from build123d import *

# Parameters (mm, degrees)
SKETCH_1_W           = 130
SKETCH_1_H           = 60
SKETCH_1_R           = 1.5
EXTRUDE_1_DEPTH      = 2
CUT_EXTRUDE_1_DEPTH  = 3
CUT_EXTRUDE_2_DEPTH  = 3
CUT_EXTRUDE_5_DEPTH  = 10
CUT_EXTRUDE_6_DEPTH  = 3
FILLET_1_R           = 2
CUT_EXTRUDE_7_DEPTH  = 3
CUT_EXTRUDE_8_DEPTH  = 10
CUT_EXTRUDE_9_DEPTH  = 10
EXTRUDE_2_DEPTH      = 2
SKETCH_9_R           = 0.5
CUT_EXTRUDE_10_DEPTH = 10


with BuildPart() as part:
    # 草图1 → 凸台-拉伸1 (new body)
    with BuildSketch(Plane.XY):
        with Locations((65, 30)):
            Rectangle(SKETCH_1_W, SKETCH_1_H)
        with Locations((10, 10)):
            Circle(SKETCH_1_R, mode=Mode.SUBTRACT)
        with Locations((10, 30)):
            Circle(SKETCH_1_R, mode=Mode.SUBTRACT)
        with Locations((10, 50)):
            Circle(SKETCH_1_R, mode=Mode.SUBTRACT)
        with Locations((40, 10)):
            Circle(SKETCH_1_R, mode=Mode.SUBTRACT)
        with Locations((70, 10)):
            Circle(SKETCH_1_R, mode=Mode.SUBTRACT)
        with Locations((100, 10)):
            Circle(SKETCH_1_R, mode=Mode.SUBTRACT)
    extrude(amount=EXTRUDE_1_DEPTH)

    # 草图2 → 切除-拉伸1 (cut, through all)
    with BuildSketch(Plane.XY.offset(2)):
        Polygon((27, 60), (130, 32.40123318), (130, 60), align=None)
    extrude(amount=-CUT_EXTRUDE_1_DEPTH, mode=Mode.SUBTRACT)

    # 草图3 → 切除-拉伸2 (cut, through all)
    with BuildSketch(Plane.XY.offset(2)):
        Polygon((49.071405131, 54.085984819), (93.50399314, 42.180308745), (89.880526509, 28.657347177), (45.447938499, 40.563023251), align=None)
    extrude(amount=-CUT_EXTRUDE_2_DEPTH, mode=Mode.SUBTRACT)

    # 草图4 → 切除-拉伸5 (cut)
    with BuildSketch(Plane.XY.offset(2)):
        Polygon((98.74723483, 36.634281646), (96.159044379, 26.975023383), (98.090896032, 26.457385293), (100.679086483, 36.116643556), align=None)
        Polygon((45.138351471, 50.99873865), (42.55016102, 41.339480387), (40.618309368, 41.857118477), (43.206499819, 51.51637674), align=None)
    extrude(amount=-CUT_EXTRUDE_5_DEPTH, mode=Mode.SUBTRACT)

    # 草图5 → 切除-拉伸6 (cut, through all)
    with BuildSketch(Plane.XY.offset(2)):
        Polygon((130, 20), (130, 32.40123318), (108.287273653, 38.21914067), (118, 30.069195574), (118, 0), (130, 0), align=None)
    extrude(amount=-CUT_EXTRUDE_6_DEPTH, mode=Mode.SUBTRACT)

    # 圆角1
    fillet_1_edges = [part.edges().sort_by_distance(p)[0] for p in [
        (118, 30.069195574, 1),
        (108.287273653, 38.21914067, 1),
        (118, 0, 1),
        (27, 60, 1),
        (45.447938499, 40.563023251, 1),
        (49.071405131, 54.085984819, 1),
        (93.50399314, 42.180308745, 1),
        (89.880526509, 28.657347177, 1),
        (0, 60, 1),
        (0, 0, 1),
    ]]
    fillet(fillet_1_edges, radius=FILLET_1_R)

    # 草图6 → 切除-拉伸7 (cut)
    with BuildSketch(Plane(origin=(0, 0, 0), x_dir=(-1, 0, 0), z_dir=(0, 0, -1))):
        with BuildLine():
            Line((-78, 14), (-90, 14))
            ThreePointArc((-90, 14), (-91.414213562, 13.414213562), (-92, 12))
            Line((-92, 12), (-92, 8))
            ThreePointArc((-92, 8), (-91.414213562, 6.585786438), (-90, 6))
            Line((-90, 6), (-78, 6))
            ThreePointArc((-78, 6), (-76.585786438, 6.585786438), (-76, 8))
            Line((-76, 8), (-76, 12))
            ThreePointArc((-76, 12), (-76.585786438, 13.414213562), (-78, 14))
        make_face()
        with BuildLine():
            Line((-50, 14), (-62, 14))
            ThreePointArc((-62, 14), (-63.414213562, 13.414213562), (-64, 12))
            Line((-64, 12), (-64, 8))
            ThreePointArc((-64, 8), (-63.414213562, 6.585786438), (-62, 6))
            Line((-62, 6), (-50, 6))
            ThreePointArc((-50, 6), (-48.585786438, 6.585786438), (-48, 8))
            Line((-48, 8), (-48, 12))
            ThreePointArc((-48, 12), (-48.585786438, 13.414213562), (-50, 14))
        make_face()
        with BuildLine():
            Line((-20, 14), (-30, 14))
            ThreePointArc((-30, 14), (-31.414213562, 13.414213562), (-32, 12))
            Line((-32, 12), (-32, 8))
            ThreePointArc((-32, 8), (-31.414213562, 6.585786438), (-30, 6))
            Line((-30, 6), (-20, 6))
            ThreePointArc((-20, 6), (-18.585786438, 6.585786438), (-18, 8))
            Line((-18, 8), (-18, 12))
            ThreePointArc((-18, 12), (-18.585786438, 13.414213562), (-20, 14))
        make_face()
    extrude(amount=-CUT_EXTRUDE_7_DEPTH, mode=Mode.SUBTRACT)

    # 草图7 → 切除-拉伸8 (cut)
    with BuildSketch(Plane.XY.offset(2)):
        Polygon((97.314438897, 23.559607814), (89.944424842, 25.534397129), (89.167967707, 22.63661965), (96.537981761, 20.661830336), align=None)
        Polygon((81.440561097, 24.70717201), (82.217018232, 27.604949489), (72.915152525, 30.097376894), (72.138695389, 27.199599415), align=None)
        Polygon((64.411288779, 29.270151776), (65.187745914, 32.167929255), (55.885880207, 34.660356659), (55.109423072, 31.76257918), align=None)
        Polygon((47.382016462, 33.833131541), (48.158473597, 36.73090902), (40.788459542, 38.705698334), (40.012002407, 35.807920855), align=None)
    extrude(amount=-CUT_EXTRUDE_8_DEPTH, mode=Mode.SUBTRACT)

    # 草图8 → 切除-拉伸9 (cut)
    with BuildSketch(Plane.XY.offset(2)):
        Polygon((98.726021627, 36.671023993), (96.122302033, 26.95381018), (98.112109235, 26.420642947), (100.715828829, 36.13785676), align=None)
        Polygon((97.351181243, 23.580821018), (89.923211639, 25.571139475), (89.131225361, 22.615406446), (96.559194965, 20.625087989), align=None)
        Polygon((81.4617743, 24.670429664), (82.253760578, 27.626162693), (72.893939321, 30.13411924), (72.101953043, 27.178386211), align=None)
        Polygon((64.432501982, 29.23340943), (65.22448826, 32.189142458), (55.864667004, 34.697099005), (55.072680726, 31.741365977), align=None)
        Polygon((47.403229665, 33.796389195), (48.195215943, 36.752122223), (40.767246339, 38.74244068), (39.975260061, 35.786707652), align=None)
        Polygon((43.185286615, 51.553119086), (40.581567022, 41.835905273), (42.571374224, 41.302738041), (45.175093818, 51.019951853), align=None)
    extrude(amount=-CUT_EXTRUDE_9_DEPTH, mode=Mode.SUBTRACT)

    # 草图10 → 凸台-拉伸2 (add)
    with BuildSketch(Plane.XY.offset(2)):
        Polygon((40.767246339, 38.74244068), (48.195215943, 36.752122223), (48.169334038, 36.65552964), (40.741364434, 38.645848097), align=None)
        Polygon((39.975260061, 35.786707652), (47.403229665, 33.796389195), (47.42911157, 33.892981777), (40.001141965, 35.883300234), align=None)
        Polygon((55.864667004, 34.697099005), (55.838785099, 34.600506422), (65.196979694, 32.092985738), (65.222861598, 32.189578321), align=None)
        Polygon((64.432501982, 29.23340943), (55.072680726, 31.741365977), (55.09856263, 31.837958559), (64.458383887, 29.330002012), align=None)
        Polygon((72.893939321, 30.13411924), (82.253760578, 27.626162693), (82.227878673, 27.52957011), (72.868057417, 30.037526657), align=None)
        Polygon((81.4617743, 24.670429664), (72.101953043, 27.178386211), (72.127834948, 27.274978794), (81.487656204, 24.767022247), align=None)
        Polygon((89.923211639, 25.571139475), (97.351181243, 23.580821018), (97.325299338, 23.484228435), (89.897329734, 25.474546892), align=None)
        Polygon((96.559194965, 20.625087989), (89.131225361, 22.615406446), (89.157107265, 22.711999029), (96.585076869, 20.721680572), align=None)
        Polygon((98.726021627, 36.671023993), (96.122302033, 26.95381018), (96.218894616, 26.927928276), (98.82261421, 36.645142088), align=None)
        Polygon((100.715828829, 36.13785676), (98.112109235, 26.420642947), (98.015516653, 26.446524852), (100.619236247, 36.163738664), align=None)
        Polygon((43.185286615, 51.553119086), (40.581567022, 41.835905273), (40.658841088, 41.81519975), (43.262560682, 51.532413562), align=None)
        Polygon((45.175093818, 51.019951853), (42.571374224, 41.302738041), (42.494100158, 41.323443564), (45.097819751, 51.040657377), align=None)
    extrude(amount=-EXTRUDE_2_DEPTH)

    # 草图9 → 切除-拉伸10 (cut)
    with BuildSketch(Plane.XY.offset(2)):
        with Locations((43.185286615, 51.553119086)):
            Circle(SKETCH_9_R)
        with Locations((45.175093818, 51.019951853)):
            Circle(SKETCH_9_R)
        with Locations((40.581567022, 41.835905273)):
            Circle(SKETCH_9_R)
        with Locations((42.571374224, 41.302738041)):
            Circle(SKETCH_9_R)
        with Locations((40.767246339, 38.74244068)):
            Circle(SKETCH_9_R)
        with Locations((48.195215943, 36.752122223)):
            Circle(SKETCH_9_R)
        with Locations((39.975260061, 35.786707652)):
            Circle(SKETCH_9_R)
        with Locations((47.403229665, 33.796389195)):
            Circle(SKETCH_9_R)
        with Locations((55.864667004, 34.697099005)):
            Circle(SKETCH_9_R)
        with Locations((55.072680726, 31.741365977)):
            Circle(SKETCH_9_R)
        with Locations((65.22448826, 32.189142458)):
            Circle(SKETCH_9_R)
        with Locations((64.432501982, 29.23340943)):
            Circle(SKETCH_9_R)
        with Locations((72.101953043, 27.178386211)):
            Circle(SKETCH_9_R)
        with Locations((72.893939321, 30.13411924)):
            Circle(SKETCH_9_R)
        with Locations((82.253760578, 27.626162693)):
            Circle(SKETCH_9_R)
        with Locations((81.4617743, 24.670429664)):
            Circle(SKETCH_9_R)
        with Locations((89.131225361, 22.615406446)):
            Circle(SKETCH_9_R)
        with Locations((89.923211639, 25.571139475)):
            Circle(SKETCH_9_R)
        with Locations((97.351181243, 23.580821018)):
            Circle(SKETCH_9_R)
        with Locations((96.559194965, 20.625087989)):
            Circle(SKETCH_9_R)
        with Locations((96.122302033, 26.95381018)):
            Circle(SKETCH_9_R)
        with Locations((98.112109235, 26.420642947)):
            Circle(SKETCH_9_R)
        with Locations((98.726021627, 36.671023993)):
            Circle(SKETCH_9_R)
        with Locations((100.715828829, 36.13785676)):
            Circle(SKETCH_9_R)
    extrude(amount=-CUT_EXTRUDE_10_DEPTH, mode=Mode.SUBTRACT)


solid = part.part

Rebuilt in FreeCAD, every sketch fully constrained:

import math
import FreeCAD as App
import Part
import Sketcher
from FreeCAD import Vector
Q = App.Units.Quantity


def edges_at(feature, points):
    """Names of the edges that pass closest to the given points."""
    edges = feature.Shape.Edges
    near = lambda p: min(range(len(edges)), key=lambda i: edges[i].distToShape(Part.Vertex(*p))[0])
    return sorted({f"Edge{near(p) + 1}" for p in points})


def add_polygon(sketch, points):
    """Adds a closed chain of lines whose ends are joined by coincident constraints."""
    first, n = sketch.GeometryCount, len(points)
    for a, b in zip(points, points[1:] + points[:1]):
        sketch.addGeometry(Part.LineSegment(App.Vector(*a, 0), App.Vector(*b, 0)), False)
    for i in range(n):
        sketch.addConstraint(Sketcher.Constraint("Coincident", first + i, 2, first + (i + 1) % n, 1))

doc = App.newDocument("Part")
body = doc.addObject("PartDesign::Body", "Body")

# Sketch on XY plane
sketch1 = body.newObject("Sketcher::SketchObject", "Sketch")
sketch1.AttachmentSupport = (doc.getObject("XY_Plane"), [""])
sketch1.MapMode = "FlatFace"
add_polygon(sketch1, [(0, 60), (0, 0), (130, 0), (130, 60)])  # lines 0-3
sketch1.addGeometry(Part.Circle(Vector(10, 10, 0), Vector(0, 0, 1), 1.5), False)  # 4
sketch1.addGeometry(Part.Circle(Vector(40, 10, 0), Vector(0, 0, 1), 1.5), False)  # 5
sketch1.addGeometry(Part.Circle(Vector(70, 10, 0), Vector(0, 0, 1), 1.5), False)  # 6
sketch1.addGeometry(Part.Circle(Vector(100, 10, 0), Vector(0, 0, 1), 1.5), False)  # 7
sketch1.addGeometry(Part.Circle(Vector(10, 30, 0), Vector(0, 0, 1), 1.5), False)  # 8
sketch1.addGeometry(Part.Circle(Vector(10, 50, 0), Vector(0, 0, 1), 1.5), False)  # 9
sketch1.addConstraint([
    Sketcher.Constraint("Vertical", 0),
    Sketcher.Constraint("Horizontal", 1),
    Sketcher.Constraint("Vertical", 2),
    Sketcher.Constraint("Horizontal", 3),
    Sketcher.Constraint("Coincident", 0, 2, -1, 1),
    Sketcher.Constraint("Equal", 4, 5),
    Sketcher.Constraint("Equal", 5, 6),
    Sketcher.Constraint("Equal", 6, 7),
    Sketcher.Constraint("Equal", 7, 8),
    Sketcher.Constraint("Equal", 8, 9),
    Sketcher.Constraint("Horizontal", 4, 3, 5, 3),
    Sketcher.Constraint("Horizontal", 5, 3, 6, 3),
    Sketcher.Constraint("Horizontal", 6, 3, 7, 3),
    Sketcher.Constraint("Vertical", 4, 3, 8, 3),
    Sketcher.Constraint("Vertical", 8, 3, 9, 3),
    Sketcher.Constraint("Diameter", 4, 3.0),
    Sketcher.Constraint("DistanceX", 1, 1, 1, 2, 130.0),
    Sketcher.Constraint("DistanceY", 0, 2, 0, 1, 60.0),
    Sketcher.Constraint("DistanceX", -1, 1, 4, 3, 10.0),
    Sketcher.Constraint("DistanceY", -1, 1, 4, 3, 10.0),
    Sketcher.Constraint("DistanceX", -1, 1, 5, 3, 40.0),
    Sketcher.Constraint("DistanceX", -1, 1, 6, 3, 70.0),
    Sketcher.Constraint("DistanceX", -1, 1, 7, 3, 100.0),
    Sketcher.Constraint("DistanceY", -1, 1, 8, 3, 30.0),
    Sketcher.Constraint("DistanceY", -1, 1, 9, 3, 50.0),
])
pad1 = body.newObject("PartDesign::Pad", "Pad")
pad1.Profile = sketch1
pad1.Length = 2

# Sketch on XY plane
sketch2 = body.newObject("Sketcher::SketchObject", "Sketch001")
sketch2.AttachmentSupport = (doc.getObject("XY_Plane"), [""])
sketch2.MapMode = "FlatFace"
sketch2.AttachmentOffset = App.Placement(Vector(0, 0, 2), App.Rotation())
add_polygon(sketch2, [(27, 60), (130, 32.401233), (130, 60)])  # lines 0-2
sketch2.addConstraint([
    Sketcher.Constraint("Vertical", 1),
    Sketcher.Constraint("Horizontal", 2),
    Sketcher.Constraint("DistanceX", 2, 2, 2, 1, 103.0),
    Sketcher.Constraint("Angle", 0, Q("-15 deg")),
    Sketcher.Constraint("DistanceX", -1, 1, 0, 2, 130.0),
    Sketcher.Constraint("DistanceY", -1, 1, 1, 2, 60.0),
])
pocket1 = body.newObject("PartDesign::Pocket", "Pocket")
pocket1.Profile = sketch2
pocket1.Type = "ThroughAll"

# Sketch on XY plane
sketch3 = body.newObject("Sketcher::SketchObject", "Sketch002")
sketch3.AttachmentSupport = (doc.getObject("XY_Plane"), [""])
sketch3.MapMode = "FlatFace"
sketch3.AttachmentOffset = App.Placement(Vector(0, 0, 2), App.Rotation())
add_polygon(sketch3, [(93.503993, 42.180309), (49.071405, 54.085985), (45.447938, 40.563023), (89.880527, 28.657347)])  # lines 0-3
sketch3.addConstraint([
    Sketcher.Constraint("Perpendicular", 0, 1),
    Sketcher.Constraint("Perpendicular", 1, 2),
    Sketcher.Constraint("Perpendicular", 2, 3),
    Sketcher.Constraint("Angle", 0, Q("165 deg")),
    Sketcher.Constraint("Distance", 0, 46.0),
    Sketcher.Constraint("Distance", 1, 14.0),
    Sketcher.Constraint("DistanceX", -1, 1, 1, 2, 45.447938),
    Sketcher.Constraint("DistanceY", -1, 1, 3, 2, 42.180309),
])
pocket2 = body.newObject("PartDesign::Pocket", "Pocket001")
pocket2.Profile = sketch3
pocket2.Type = "ThroughAll"

# Sketch on XY plane
sketch4 = body.newObject("Sketcher::SketchObject", "Sketch003")
sketch4.AttachmentSupport = (doc.getObject("XY_Plane"), [""])
sketch4.MapMode = "FlatFace"
sketch4.AttachmentOffset = App.Placement(Vector(0, 0, 2), App.Rotation())
add_polygon(sketch4, [(98.747235, 36.634282), (96.159044, 26.975023), (98.090896, 26.457385), (100.679086, 36.116644)])  # lines 0-3
add_polygon(sketch4, [(42.550161, 41.33948), (45.138351, 50.998739), (43.2065, 51.516377), (40.618309, 41.857118)])  # lines 4-7
sketch4.addConstraint([
    Sketcher.Constraint("Perpendicular", 0, 1),
    Sketcher.Constraint("Perpendicular", 1, 2),
    Sketcher.Constraint("Perpendicular", 2, 3),
    Sketcher.Constraint("Perpendicular", 3, 4),
    Sketcher.Constraint("Perpendicular", 4, 5),
    Sketcher.Constraint("Perpendicular", 5, 6),
    Sketcher.Constraint("Perpendicular", 6, 7),
    Sketcher.Constraint("Equal", 2, 4),
    Sketcher.Constraint("Equal", 3, 5),
    Sketcher.Constraint("Angle", 0, Q("-105 deg")),
    Sketcher.Constraint("Distance", 0, 10.0),
    Sketcher.Constraint("Distance", 1, 2.0),
    Sketcher.Constraint("DistanceX", -1, 1, 5, 2, 43.2065),
    Sketcher.Constraint("DistanceY", 3, 2, 7, 2, 4.705199),
    Sketcher.Constraint("DistanceY", -1, 1, 3, 2, 36.634282),
    Sketcher.Constraint("DistanceX", -1, 1, 0, 2, 96.159044),
])
pocket3 = body.newObject("PartDesign::Pocket", "Pocket002")
pocket3.Profile = sketch4
pocket3.Length = 10

# Sketch on XY plane
sketch5 = body.newObject("Sketcher::SketchObject", "Sketch004")
sketch5.AttachmentSupport = (doc.getObject("XY_Plane"), [""])
sketch5.MapMode = "FlatFace"
sketch5.AttachmentOffset = App.Placement(Vector(0, 0, 2), App.Rotation())
add_polygon(sketch5, [(130, 32.401233), (108.287274, 38.219141), (118, 30.069196), (118, 0), (130, 0)])  # lines 0-4
sketch5.addConstraint([
    Sketcher.Constraint("Vertical", 2),
    Sketcher.Constraint("Horizontal", 3),
    Sketcher.Constraint("Vertical", 4),
    Sketcher.Constraint("PointOnObject", 2, 2, -1),
    Sketcher.Constraint("DistanceX", 3, 1, 3, 2, 12.0),
    Sketcher.Constraint("Angle", 0, Q("165 deg")),
    Sketcher.Constraint("Angle", 1, Q("-40 deg")),
    Sketcher.Constraint("DistanceX", -1, 1, 1, 2, 118.0),
    Sketcher.Constraint("Distance", 0, 22.478668),
    Sketcher.Constraint("DistanceY", 2, 2, 2, 1, 30.069196),
])
pocket4 = body.newObject("PartDesign::Pocket", "Pocket003")
pocket4.Profile = sketch5
pocket4.Type = "ThroughAll"
doc.recompute()

fillet = body.newObject("PartDesign::Fillet", "Fillet")
fillet.Base = (pocket4, edges_at(pocket4, [
    (118, 30.069, 1),
    (108.287, 38.219, 1),
    (118, 0, 1),
    (27, 60, 1),
    (45.448, 40.563, 1),
    (49.071, 54.086, 1),
    (93.504, 42.18, 1),
    (89.881, 28.657, 1),
    (0, 60, 1),
    (0, 0, 1),
]))
fillet.Radius = 2

# Sketch on XY plane
sketch6 = body.newObject("Sketcher::SketchObject", "Sketch005")
sketch6.AttachmentSupport = (doc.getObject("XY_Plane"), [""])
sketch6.MapMode = "FlatFace"
sketch6.addGeometry([
    Part.LineSegment(Vector(78, 14, 0), Vector(90, 14, 0)),  # 0
    Part.ArcOfCircle(Part.Circle(Vector(90, 12, 0), Vector(0, 0, 1), 2), math.radians(0), math.radians(90)),  # 1
    Part.LineSegment(Vector(92, 12, 0), Vector(92, 8, 0)),  # 2
    Part.ArcOfCircle(Part.Circle(Vector(90, 8, 0), Vector(0, 0, 1), 2), math.radians(-90), math.radians(0)),  # 3
    Part.LineSegment(Vector(90, 6, 0), Vector(78, 6, 0)),  # 4
    Part.ArcOfCircle(Part.Circle(Vector(78, 8, 0), Vector(0, 0, 1), 2), math.radians(-180), math.radians(-90)),  # 5
    Part.LineSegment(Vector(76, 8, 0), Vector(76, 12, 0)),  # 6
    Part.ArcOfCircle(Part.Circle(Vector(78, 12, 0), Vector(0, 0, 1), 2), math.radians(90), math.radians(180)),  # 7
    Part.LineSegment(Vector(50, 14, 0), Vector(62, 14, 0)),  # 8
    Part.ArcOfCircle(Part.Circle(Vector(62, 12, 0), Vector(0, 0, 1), 2), math.radians(0), math.radians(90)),  # 9
    Part.LineSegment(Vector(64, 12, 0), Vector(64, 8, 0)),  # 10
    Part.ArcOfCircle(Part.Circle(Vector(62, 8, 0), Vector(0, 0, 1), 2), math.radians(-90), math.radians(0)),  # 11
    Part.LineSegment(Vector(62, 6, 0), Vector(50, 6, 0)),  # 12
    Part.ArcOfCircle(Part.Circle(Vector(50, 8, 0), Vector(0, 0, 1), 2), math.radians(-180), math.radians(-90)),  # 13
    Part.LineSegment(Vector(48, 8, 0), Vector(48, 12, 0)),  # 14
    Part.ArcOfCircle(Part.Circle(Vector(50, 12, 0), Vector(0, 0, 1), 2), math.radians(90), math.radians(180)),  # 15
    Part.LineSegment(Vector(20, 14, 0), Vector(30, 14, 0)),  # 16
    Part.ArcOfCircle(Part.Circle(Vector(30, 12, 0), Vector(0, 0, 1), 2), math.radians(0), math.radians(90)),  # 17
    Part.LineSegment(Vector(32, 12, 0), Vector(32, 8, 0)),  # 18
    Part.ArcOfCircle(Part.Circle(Vector(30, 8, 0), Vector(0, 0, 1), 2), math.radians(-90), math.radians(0)),  # 19
    Part.LineSegment(Vector(30, 6, 0), Vector(20, 6, 0)),  # 20
    Part.ArcOfCircle(Part.Circle(Vector(20, 8, 0), Vector(0, 0, 1), 2), math.radians(-180), math.radians(-90)),  # 21
    Part.LineSegment(Vector(18, 8, 0), Vector(18, 12, 0)),  # 22
    Part.ArcOfCircle(Part.Circle(Vector(20, 12, 0), Vector(0, 0, 1), 2), math.radians(90), math.radians(180)),  # 23
], False)
sketch6.addConstraint([
    Sketcher.Constraint("Tangent", 0, 2, 1, 2),
    Sketcher.Constraint("Tangent", 1, 1, 2, 1),
    Sketcher.Constraint("Tangent", 2, 2, 3, 2),
    Sketcher.Constraint("Tangent", 3, 1, 4, 1),
    Sketcher.Constraint("Tangent", 4, 2, 5, 2),
    Sketcher.Constraint("Tangent", 5, 1, 6, 1),
    Sketcher.Constraint("Tangent", 6, 2, 7, 2),
    Sketcher.Constraint("Tangent", 7, 1, 0, 1),
    Sketcher.Constraint("Tangent", 8, 2, 9, 2),
    Sketcher.Constraint("Tangent", 9, 1, 10, 1),
    Sketcher.Constraint("Tangent", 10, 2, 11, 2),
    Sketcher.Constraint("Tangent", 11, 1, 12, 1),
    Sketcher.Constraint("Tangent", 12, 2, 13, 2),
    Sketcher.Constraint("Tangent", 13, 1, 14, 1),
    Sketcher.Constraint("Tangent", 14, 2, 15, 2),
    Sketcher.Constraint("Tangent", 15, 1, 8, 1),
    Sketcher.Constraint("Tangent", 16, 2, 17, 2),
    Sketcher.Constraint("Tangent", 17, 1, 18, 1),
    Sketcher.Constraint("Tangent", 18, 2, 19, 2),
    Sketcher.Constraint("Tangent", 19, 1, 20, 1),
    Sketcher.Constraint("Tangent", 20, 2, 21, 2),
    Sketcher.Constraint("Tangent", 21, 1, 22, 1),
    Sketcher.Constraint("Tangent", 22, 2, 23, 2),
    Sketcher.Constraint("Tangent", 23, 1, 16, 1),
    Sketcher.Constraint("Horizontal", 0),
    Sketcher.Constraint("Vertical", 2),
    Sketcher.Constraint("Horizontal", 4),
    Sketcher.Constraint("Vertical", 6),
    Sketcher.Constraint("Horizontal", 8),
    Sketcher.Constraint("Vertical", 10),
    Sketcher.Constraint("Horizontal", 12),
    Sketcher.Constraint("Vertical", 14),
    Sketcher.Constraint("Horizontal", 16),
    Sketcher.Constraint("Vertical", 18),
    Sketcher.Constraint("Horizontal", 20),
    Sketcher.Constraint("Vertical", 22),
    Sketcher.Constraint("Equal", 1, 3),
    Sketcher.Constraint("Equal", 3, 5),
    Sketcher.Constraint("Equal", 5, 7),
    Sketcher.Constraint("Equal", 7, 9),
    Sketcher.Constraint("Equal", 9, 11),
    Sketcher.Constraint("Equal", 11, 13),
    Sketcher.Constraint("Equal", 13, 15),
    Sketcher.Constraint("Equal", 15, 17),
    Sketcher.Constraint("Equal", 17, 19),
    Sketcher.Constraint("Equal", 19, 21),
    Sketcher.Constraint("Equal", 21, 23),
    Sketcher.Constraint("Horizontal", 7, 3, 9, 3),
    Sketcher.Constraint("Horizontal", 5, 3, 11, 3),
    Sketcher.Constraint("Horizontal", 15, 3, 17, 3),
    Sketcher.Constraint("Horizontal", 13, 3, 19, 3),
    Sketcher.Constraint("Equal", 4, 8),
    Sketcher.Constraint("Radius", 1, 2.0),
    Sketcher.Constraint("DistanceX", 0, 1, 0, 2, 12.0),
    Sketcher.Constraint("DistanceX", 16, 1, 16, 2, 10.0),
    Sketcher.Constraint("DistanceY", 2, 2, 2, 1, 4.0),
    Sketcher.Constraint("DistanceX", -1, 1, 1, 3, 90.0),
    Sketcher.Constraint("DistanceY", -1, 1, 1, 3, 12.0),
    Sketcher.Constraint("DistanceX", -1, 1, 9, 3, 62.0),
    Sketcher.Constraint("DistanceX", -1, 1, 17, 3, 30.0),
])
pocket5 = body.newObject("PartDesign::Pocket", "Pocket004")
pocket5.Profile = sketch6
pocket5.Length = 3
pocket5.Reversed = True

# Sketch on XY plane
sketch7 = body.newObject("Sketcher::SketchObject", "Sketch006")
sketch7.AttachmentSupport = (doc.getObject("XY_Plane"), [""])
sketch7.MapMode = "FlatFace"
sketch7.AttachmentOffset = App.Placement(Vector(0, 0, 2), App.Rotation())
add_polygon(sketch7, [(97.314439, 23.559608), (89.944425, 25.534397), (89.167968, 22.63662), (96.537982, 20.66183)])  # lines 0-3
add_polygon(sketch7, [(81.440561, 24.707172), (82.217018, 27.604949), (72.915153, 30.097377), (72.138695, 27.199599)])  # lines 4-7
add_polygon(sketch7, [(64.411289, 29.270152), (65.187746, 32.167929), (55.88588, 34.660357), (55.109423, 31.762579)])  # lines 8-11
add_polygon(sketch7, [(47.382016, 33.833132), (48.158474, 36.730909), (40.78846, 38.705698), (40.012002, 35.807921)])  # lines 12-15
sketch7.addConstraint([
    Sketcher.Constraint("Perpendicular", 0, 1),
    Sketcher.Constraint("Perpendicular", 1, 2),
    Sketcher.Constraint("Perpendicular", 2, 3),
    Sketcher.Constraint("Parallel", 3, 4),
    Sketcher.Constraint("Perpendicular", 4, 5),
    Sketcher.Constraint("Perpendicular", 5, 6),
    Sketcher.Constraint("Perpendicular", 6, 7),
    Sketcher.Constraint("Perpendicular", 7, 8),
    Sketcher.Constraint("Perpendicular", 8, 9),
    Sketcher.Constraint("Perpendicular", 9, 10),
    Sketcher.Constraint("Perpendicular", 10, 11),
    Sketcher.Constraint("Perpendicular", 11, 12),
    Sketcher.Constraint("Perpendicular", 12, 13),
    Sketcher.Constraint("Perpendicular", 13, 14),
    Sketcher.Constraint("Perpendicular", 14, 15),
    Sketcher.Constraint("Equal", 3, 4),
    Sketcher.Constraint("Equal", 6, 8),
    Sketcher.Constraint("Equal", 7, 9),
    Sketcher.Constraint("Equal", 10, 12),
    Sketcher.Constraint("Equal", 2, 13),
    Sketcher.Constraint("Angle", 0, Q("165 deg")),
    Sketcher.Constraint("Distance", 1, 3.0),
    Sketcher.Constraint("Distance", 0, 7.63),
    Sketcher.Constraint("Distance", 5, 9.63),
    Sketcher.Constraint("DistanceY", -1, 1, 6, 2, 27.199599),
    Sketcher.Constraint("DistanceY", -1, 1, 13, 2, 38.705698),
    Sketcher.Constraint("DistanceY", -1, 1, 1, 2, 22.63662),
    Sketcher.Constraint("DistanceX", -1, 1, 2, 2, 96.537982),
    Sketcher.Constraint("DistanceX", -1, 1, 4, 2, 82.217018),
    Sketcher.Constraint("DistanceY", -1, 1, 8, 2, 32.167929),
    Sketcher.Constraint("DistanceX", -1, 1, 9, 2, 55.88588),
    Sketcher.Constraint("DistanceX", -1, 1, 13, 2, 40.78846),
])
pocket6 = body.newObject("PartDesign::Pocket", "Pocket005")
pocket6.Profile = sketch7
pocket6.Length = 10

# Sketch on XY plane
sketch8 = body.newObject("Sketcher::SketchObject", "Sketch007")
sketch8.AttachmentSupport = (doc.getObject("XY_Plane"), [""])
sketch8.MapMode = "FlatFace"
sketch8.AttachmentOffset = App.Placement(Vector(0, 0, 2), App.Rotation())
add_polygon(sketch8, [(98.726022, 36.671024), (96.122302, 26.95381), (98.112109, 26.420643), (100.715829, 36.137857)])  # lines 0-3
add_polygon(sketch8, [(97.351181, 23.580821), (89.923212, 25.571139), (89.131225, 22.615406), (96.559195, 20.625088)])  # lines 4-7
add_polygon(sketch8, [(81.461774, 24.67043), (82.253761, 27.626163), (72.893939, 30.134119), (72.101953, 27.178386)])  # lines 8-11
add_polygon(sketch8, [(64.432502, 29.233409), (65.224488, 32.189142), (55.864667, 34.697099), (55.072681, 31.741366)])  # lines 12-15
add_polygon(sketch8, [(47.40323, 33.796389), (48.195216, 36.752122), (40.767246, 38.742441), (39.97526, 35.786708)])  # lines 16-19
add_polygon(sketch8, [(43.185287, 51.553119), (40.581567, 41.835905), (42.571374, 41.302738), (45.175094, 51.019952)])  # lines 20-23
sketch8.addConstraint([
    Sketcher.Constraint("Perpendicular", 0, 1),
    Sketcher.Constraint("Perpendicular", 1, 2),
    Sketcher.Constraint("Perpendicular", 2, 3),
    Sketcher.Constraint("Parallel", 3, 4),
    Sketcher.Constraint("Perpendicular", 4, 5),
    Sketcher.Constraint("Perpendicular", 5, 6),
    Sketcher.Constraint("Perpendicular", 6, 7),
    Sketcher.Constraint("Parallel", 7, 8),
    Sketcher.Constraint("Perpendicular", 8, 9),
    Sketcher.Constraint("Perpendicular", 9, 10),
    Sketcher.Constraint("Perpendicular", 10, 11),
    Sketcher.Constraint("Perpendicular", 11, 12),
    Sketcher.Constraint("Perpendicular", 12, 13),
    Sketcher.Constraint("Perpendicular", 13, 14),
    Sketcher.Constraint("Perpendicular", 14, 15),
    Sketcher.Constraint("Perpendicular", 15, 16),
    Sketcher.Constraint("Perpendicular", 16, 17),
    Sketcher.Constraint("Perpendicular", 17, 18),
    Sketcher.Constraint("Perpendicular", 18, 19),
    Sketcher.Constraint("Perpendicular", 19, 20),
    Sketcher.Constraint("Perpendicular", 20, 21),
    Sketcher.Constraint("Perpendicular", 21, 22),
    Sketcher.Constraint("Perpendicular", 22, 23),
    Sketcher.Constraint("Equal", 7, 8),
    Sketcher.Constraint("Equal", 10, 12),
    Sketcher.Constraint("Equal", 11, 13),
    Sketcher.Constraint("Equal", 14, 16),
    Sketcher.Constraint("Equal", 6, 17),
    Sketcher.Constraint("Equal", 2, 20),
    Sketcher.Constraint("Equal", 3, 21),
    Sketcher.Constraint("Angle", 0, Q("-105 deg")),
    Sketcher.Constraint("Distance", 0, 10.06),
    Sketcher.Constraint("Distance", 1, 2.06),
    Sketcher.Constraint("Distance", 4, 7.69),
    Sketcher.Constraint("Distance", 5, 3.06),
    Sketcher.Constraint("Distance", 9, 9.69),
    Sketcher.Constraint("DistanceY", -1, 1, 13, 2, 34.697099),
    Sketcher.Constraint("DistanceX", -1, 1, 15, 2, 64.432502),
    Sketcher.Constraint("DistanceY", 7, 2, 9, 2, 6.553298),
    Sketcher.Constraint("DistanceY", 12, 2, 17, 2, 6.553298),
    Sketcher.Constraint("DistanceX", 20, 2, 13, 2, 15.2831),
    Sketcher.Constraint("DistanceY", -1, 1, 0, 2, 26.95381),
    Sketcher.Constraint("DistanceX", -1, 1, 1, 2, 98.112109),
    Sketcher.Constraint("DistanceX", -1, 1, 4, 2, 89.923212),
    Sketcher.Constraint("DistanceY", -1, 1, 4, 2, 25.571139),
    Sketcher.Constraint("DistanceX", -1, 1, 8, 2, 82.253761),
    Sketcher.Constraint("DistanceX", -1, 1, 18, 2, 39.97526),
    Sketcher.Constraint("DistanceY", -1, 1, 21, 2, 41.302738),
])
pocket7 = body.newObject("PartDesign::Pocket", "Pocket006")
pocket7.Profile = sketch8
pocket7.Length = 10

# Sketch on XY plane
sketch9 = body.newObject("Sketcher::SketchObject", "Sketch008")
sketch9.AttachmentSupport = (doc.getObject("XY_Plane"), [""])
sketch9.MapMode = "FlatFace"
sketch9.AttachmentOffset = App.Placement(Vector(0, 0, 2), App.Rotation())
add_polygon(sketch9, [(48.195216, 36.752122), (40.767246, 38.742441), (40.741364, 38.645848), (48.169334, 36.65553)])  # lines 0-3
add_polygon(sketch9, [(39.97526, 35.786708), (47.40323, 33.796389), (47.429112, 33.892982), (40.001142, 35.8833)])  # lines 4-7
add_polygon(sketch9, [(55.864667, 34.697099), (55.838785, 34.600506), (65.19698, 32.092986), (65.222862, 32.189578)])  # lines 8-11
add_polygon(sketch9, [(55.072681, 31.741366), (64.432502, 29.233409), (64.458384, 29.330002), (55.098563, 31.837959)])  # lines 12-15
add_polygon(sketch9, [(82.253761, 27.626163), (72.893939, 30.134119), (72.868057, 30.037527), (82.227879, 27.52957)])  # lines 16-19
add_polygon(sketch9, [(72.101953, 27.178386), (81.461774, 24.67043), (81.487656, 24.767022), (72.127835, 27.274979)])  # lines 20-23
add_polygon(sketch9, [(97.351181, 23.580821), (89.923212, 25.571139), (89.89733, 25.474547), (97.325299, 23.484228)])  # lines 24-27
add_polygon(sketch9, [(89.131225, 22.615406), (96.559195, 20.625088), (96.585077, 20.721681), (89.157107, 22.711999)])  # lines 28-31
add_polygon(sketch9, [(98.726022, 36.671024), (96.122302, 26.95381), (96.218895, 26.927928), (98.822614, 36.645142)])  # lines 32-35
add_polygon(sketch9, [(98.112109, 26.420643), (100.715829, 36.137857), (100.619236, 36.163739), (98.015517, 26.446525)])  # lines 36-39
add_polygon(sketch9, [(43.185287, 51.553119), (40.581567, 41.835905), (40.658841, 41.8152), (43.262561, 51.532414)])  # lines 40-43
add_polygon(sketch9, [(42.571374, 41.302738), (45.175094, 51.019952), (45.09782, 51.040657), (42.4941, 41.323444)])  # lines 44-47
sketch9.addConstraint([
    Sketcher.Constraint("Perpendicular", 0, 1),
    Sketcher.Constraint("Perpendicular", 1, 2),
    Sketcher.Constraint("Perpendicular", 2, 3),
    Sketcher.Constraint("Perpendicular", 3, 4),
    Sketcher.Constraint("Perpendicular", 4, 5),
    Sketcher.Constraint("Perpendicular", 5, 6),
    Sketcher.Constraint("Perpendicular", 6, 7),
    Sketcher.Constraint("Parallel", 7, 8),
    Sketcher.Constraint("Perpendicular", 8, 9),
    Sketcher.Constraint("Perpendicular", 9, 10),
    Sketcher.Constraint("Perpendicular", 10, 11),
    Sketcher.Constraint("Parallel", 11, 12),
    Sketcher.Constraint("Perpendicular", 12, 13),
    Sketcher.Constraint("Perpendicular", 13, 14),
    Sketcher.Constraint("Perpendicular", 14, 15),
    Sketcher.Constraint("Perpendicular", 15, 16),
    Sketcher.Constraint("Perpendicular", 16, 17),
    Sketcher.Constraint("Perpendicular", 17, 18),
    Sketcher.Constraint("Perpendicular", 18, 19),
    Sketcher.Constraint("Perpendicular", 19, 20),
    Sketcher.Constraint("Perpendicular", 20, 21),
    Sketcher.Constraint("Perpendicular", 21, 22),
    Sketcher.Constraint("Perpendicular", 22, 23),
    Sketcher.Constraint("Perpendicular", 23, 24),
    Sketcher.Constraint("Perpendicular", 24, 25),
    Sketcher.Constraint("Perpendicular", 25, 26),
    Sketcher.Constraint("Perpendicular", 26, 27),
    Sketcher.Constraint("Perpendicular", 27, 28),
    Sketcher.Constraint("Perpendicular", 28, 29),
    Sketcher.Constraint("Perpendicular", 29, 30),
    Sketcher.Constraint("Perpendicular", 30, 31),
    Sketcher.Constraint("Parallel", 31, 32),
    Sketcher.Constraint("Perpendicular", 32, 33),
    Sketcher.Constraint("Perpendicular", 33, 34),
    Sketcher.Constraint("Perpendicular", 34, 35),
    Sketcher.Constraint("Perpendicular", 35, 36),
    Sketcher.Constraint("Perpendicular", 36, 37),
    Sketcher.Constraint("Perpendicular", 37, 38),
    Sketcher.Constraint("Perpendicular", 38, 39),
    Sketcher.Constraint("Perpendicular", 39, 40),
    Sketcher.Constraint("Perpendicular", 40, 41),
    Sketcher.Constraint("Perpendicular", 41, 42),
    Sketcher.Constraint("Perpendicular", 42, 43),
    Sketcher.Constraint("Perpendicular", 43, 44),
    Sketcher.Constraint("Perpendicular", 44, 45),
    Sketcher.Constraint("Perpendicular", 45, 46),
    Sketcher.Constraint("Perpendicular", 46, 47),
    Sketcher.Constraint("Equal", 2, 4),
    Sketcher.Constraint("Equal", 3, 5),
    Sketcher.Constraint("Equal", 7, 8),
    Sketcher.Constraint("Equal", 10, 13),
    Sketcher.Constraint("Equal", 14, 16),
    Sketcher.Constraint("Equal", 15, 17),
    Sketcher.Constraint("Equal", 18, 20),
    Sketcher.Constraint("Equal", 19, 21),
    Sketcher.Constraint("Equal", 6, 24),
    Sketcher.Constraint("Equal", 23, 25),
    Sketcher.Constraint("Equal", 26, 28),
    Sketcher.Constraint("Equal", 27, 29),
    Sketcher.Constraint("Equal", 31, 33),
    Sketcher.Constraint("Equal", 34, 36),
    Sketcher.Constraint("Equal", 35, 37),
    Sketcher.Constraint("Equal", 38, 40),
    Sketcher.Constraint("Equal", 42, 44),
    Sketcher.Constraint("Equal", 43, 45),
    Sketcher.Constraint("Angle", 0, Q("165 deg")),
    Sketcher.Constraint("Distance", 1, 0.1),
    Sketcher.Constraint("Distance", 0, 7.69),
    Sketcher.Constraint("Distance", 12, 9.69),
    Sketcher.Constraint("Distance", 32, 10.06),
    Sketcher.Constraint("Distance", 41, 0.08),
    Sketcher.Constraint("DistanceY", -1, 1, 30, 2, 22.711999),
    Sketcher.Constraint("DistanceY", -1, 1, 6, 2, 35.8833),
    Sketcher.Constraint("DistanceY", -1, 1, 11, 2, 34.697099),
    Sketcher.Constraint("DistanceX", -1, 1, 12, 2, 64.432502),
    Sketcher.Constraint("DistanceX", -1, 1, 26, 2, 97.325299),
    Sketcher.Constraint("DistanceY", -1, 1, 41, 2, 41.8152),
    Sketcher.Constraint("DistanceX", -1, 1, 46, 2, 42.4941),
    Sketcher.Constraint("DistanceX", 8, 2, 13, 2, 8.619599),
    Sketcher.Constraint("DistanceX", 9, 2, 18, 2, 17.030899),
    Sketcher.Constraint("DistanceX", 17, 2, 21, 2, 8.619599),
    Sketcher.Constraint("DistanceY", 26, 2, 33, 2, 3.4437),
    Sketcher.Constraint("DistanceX", 33, 2, 28, 2, 0.3403),
    Sketcher.Constraint("DistanceX", 6, 2, 41, 2, 0.657699),
    Sketcher.Constraint("DistanceY", -1, 1, 0, 2, 38.742441),
    Sketcher.Constraint("DistanceX", -1, 1, 4, 2, 47.40323),
    Sketcher.Constraint("DistanceX", -1, 1, 9, 2, 65.19698),
    Sketcher.Constraint("DistanceY", -1, 1, 12, 2, 29.233409),
    Sketcher.Constraint("DistanceY", -1, 1, 16, 2, 30.134119),
    Sketcher.Constraint("DistanceY", -1, 1, 20, 2, 24.67043),
    Sketcher.Constraint("DistanceY", -1, 1, 24, 2, 25.571139),
    Sketcher.Constraint("DistanceX", -1, 1, 35, 2, 98.726022),
    Sketcher.Constraint("DistanceX", -1, 1, 36, 2, 100.715829),
    Sketcher.Constraint("DistanceY", -1, 1, 37, 2, 36.163739),
    Sketcher.Constraint("DistanceY", -1, 1, 44, 2, 51.019952),
    Sketcher.Constraint("DistanceX", 2, 2, 8, 2, 7.669451),
])
pad2 = body.newObject("PartDesign::Pad", "Pad001")
pad2.Profile = sketch9
pad2.Length = 2
pad2.Reversed = True

# Sketch on XY plane
sketch10 = body.newObject("Sketcher::SketchObject", "Sketch009")
sketch10.AttachmentSupport = (doc.getObject("XY_Plane"), [""])
sketch10.MapMode = "FlatFace"
sketch10.AttachmentOffset = App.Placement(Vector(0, 0, 2), App.Rotation())
sketch10.addGeometry([
    Part.Circle(Vector(43.185287, 51.553119, 0), Vector(0, 0, 1), 0.5),  # 0
    Part.Circle(Vector(45.175094, 51.019952, 0), Vector(0, 0, 1), 0.5),  # 1
    Part.Circle(Vector(40.581567, 41.835905, 0), Vector(0, 0, 1), 0.5),  # 2
    Part.Circle(Vector(42.571374, 41.302738, 0), Vector(0, 0, 1), 0.5),  # 3
    Part.Circle(Vector(40.767246, 38.742441, 0), Vector(0, 0, 1), 0.5),  # 4
    Part.Circle(Vector(48.195216, 36.752122, 0), Vector(0, 0, 1), 0.5),  # 5
    Part.Circle(Vector(39.97526, 35.786708, 0), Vector(0, 0, 1), 0.5),  # 6
    Part.Circle(Vector(47.40323, 33.796389, 0), Vector(0, 0, 1), 0.5),  # 7
    Part.Circle(Vector(55.864667, 34.697099, 0), Vector(0, 0, 1), 0.5),  # 8
    Part.Circle(Vector(55.072681, 31.741366, 0), Vector(0, 0, 1), 0.5),  # 9
    Part.Circle(Vector(65.224488, 32.189142, 0), Vector(0, 0, 1), 0.5),  # 10
    Part.Circle(Vector(64.432502, 29.233409, 0), Vector(0, 0, 1), 0.5),  # 11
    Part.Circle(Vector(72.101953, 27.178386, 0), Vector(0, 0, 1), 0.5),  # 12
    Part.Circle(Vector(72.893939, 30.134119, 0), Vector(0, 0, 1), 0.5),  # 13
    Part.Circle(Vector(82.253761, 27.626163, 0), Vector(0, 0, 1), 0.5),  # 14
    Part.Circle(Vector(81.461774, 24.67043, 0), Vector(0, 0, 1), 0.5),  # 15
    Part.Circle(Vector(89.131225, 22.615406, 0), Vector(0, 0, 1), 0.5),  # 16
    Part.Circle(Vector(89.923212, 25.571139, 0), Vector(0, 0, 1), 0.5),  # 17
    Part.Circle(Vector(97.351181, 23.580821, 0), Vector(0, 0, 1), 0.5),  # 18
    Part.Circle(Vector(96.559195, 20.625088, 0), Vector(0, 0, 1), 0.5),  # 19
    Part.Circle(Vector(96.122302, 26.95381, 0), Vector(0, 0, 1), 0.5),  # 20
    Part.Circle(Vector(98.112109, 26.420643, 0), Vector(0, 0, 1), 0.5),  # 21
    Part.Circle(Vector(98.726022, 36.671024, 0), Vector(0, 0, 1), 0.5),  # 22
    Part.Circle(Vector(100.715829, 36.137857, 0), Vector(0, 0, 1), 0.5),  # 23
], False)
sketch10.addConstraint([
    Sketcher.Constraint("Equal", 0, 1),
    Sketcher.Constraint("Equal", 1, 2),
    Sketcher.Constraint("Equal", 2, 3),
    Sketcher.Constraint("Equal", 3, 4),
    Sketcher.Constraint("Equal", 4, 5),
    Sketcher.Constraint("Equal", 5, 6),
    Sketcher.Constraint("Equal", 6, 7),
    Sketcher.Constraint("Equal", 7, 8),
    Sketcher.Constraint("Equal", 8, 9),
    Sketcher.Constraint("Equal", 9, 10),
    Sketcher.Constraint("Equal", 10, 11),
    Sketcher.Constraint("Equal", 11, 12),
    Sketcher.Constraint("Equal", 12, 13),
    Sketcher.Constraint("Equal", 13, 14),
    Sketcher.Constraint("Equal", 14, 15),
    Sketcher.Constraint("Equal", 15, 16),
    Sketcher.Constraint("Equal", 16, 17),
    Sketcher.Constraint("Equal", 17, 18),
    Sketcher.Constraint("Equal", 18, 19),
    Sketcher.Constraint("Equal", 19, 20),
    Sketcher.Constraint("Equal", 20, 21),
    Sketcher.Constraint("Equal", 21, 22),
    Sketcher.Constraint("Equal", 22, 23),
    Sketcher.Constraint("Diameter", 0, 1.0),
    Sketcher.Constraint("DistanceY", -1, 1, 8, 3, 34.697099),
    Sketcher.Constraint("DistanceX", -1, 1, 11, 3, 64.432502),
    Sketcher.Constraint("DistanceY", 18, 3, 13, 3, 6.553298),
    Sketcher.Constraint("DistanceY", -1, 1, 0, 3, 51.553119),
    Sketcher.Constraint("DistanceY", -1, 1, 1, 3, 51.019952),
    Sketcher.Constraint("DistanceY", -1, 1, 3, 3, 41.302738),
    Sketcher.Constraint("DistanceY", -1, 1, 4, 3, 38.742441),
    Sketcher.Constraint("DistanceX", -1, 1, 6, 3, 39.97526),
    Sketcher.Constraint("DistanceX", -1, 1, 7, 3, 47.40323),
    Sketcher.Constraint("DistanceY", -1, 1, 7, 3, 33.796389),
    Sketcher.Constraint("DistanceX", -1, 1, 9, 3, 55.072681),
    Sketcher.Constraint("DistanceX", -1, 1, 10, 3, 65.224488),
    Sketcher.Constraint("DistanceY", -1, 1, 11, 3, 29.233409),
    Sketcher.Constraint("DistanceX", -1, 1, 13, 3, 72.893939),
    Sketcher.Constraint("DistanceY", -1, 1, 13, 3, 30.134119),
    Sketcher.Constraint("DistanceX", -1, 1, 14, 3, 82.253761),
    Sketcher.Constraint("DistanceY", -1, 1, 15, 3, 24.67043),
    Sketcher.Constraint("DistanceX", -1, 1, 17, 3, 89.923212),
    Sketcher.Constraint("DistanceY", -1, 1, 17, 3, 25.571139),
    Sketcher.Constraint("DistanceX", -1, 1, 18, 3, 97.351181),
    Sketcher.Constraint("DistanceY", -1, 1, 20, 3, 26.95381),
    Sketcher.Constraint("DistanceX", -1, 1, 21, 3, 98.112109),
    Sketcher.Constraint("DistanceX", -1, 1, 22, 3, 98.726022),
    Sketcher.Constraint("DistanceX", -1, 1, 23, 3, 100.715829),
    Sketcher.Constraint("DistanceX", 2, 3, 0, 3, 2.60372),
    Sketcher.Constraint("DistanceX", 3, 3, 1, 3, 2.60372),
    Sketcher.Constraint("DistanceX", 2, 3, 4, 3, 0.185679),
    Sketcher.Constraint("DistanceX", 3, 3, 5, 3, 5.623842),
    Sketcher.Constraint("DistanceX", 4, 3, 5, 3, 7.42797),
    Sketcher.Constraint("DistanceY", 5, 3, 4, 3, 1.990318),
    Sketcher.Constraint("DistanceY", 6, 3, 3, 3, 5.51603),
    Sketcher.Constraint("DistanceX", 5, 3, 8, 3, 7.669451),
    Sketcher.Constraint("DistanceY", 9, 3, 6, 3, 4.045342),
    Sketcher.Constraint("DistanceX", 8, 3, 10, 3, 9.359821),
    Sketcher.Constraint("DistanceY", 10, 3, 5, 3, 4.56298),
    Sketcher.Constraint("DistanceX", 11, 3, 12, 3, 7.669451),
    Sketcher.Constraint("DistanceY", 12, 3, 9, 3, 4.56298),
    Sketcher.Constraint("DistanceY", 14, 3, 10, 3, 4.56298),
    Sketcher.Constraint("DistanceX", 12, 3, 15, 3, 9.359821),
    Sketcher.Constraint("DistanceX", 15, 3, 16, 3, 7.669451),
    Sketcher.Constraint("DistanceY", 16, 3, 12, 3, 4.56298),
    Sketcher.Constraint("DistanceX", 16, 3, 19, 3, 7.42797),
    Sketcher.Constraint("DistanceY", 19, 3, 16, 3, 1.990318),
    Sketcher.Constraint("DistanceX", 20, 3, 18, 3, 1.228879),
    Sketcher.Constraint("DistanceY", 18, 3, 21, 3, 2.839822),
    Sketcher.Constraint("DistanceY", 21, 3, 22, 3, 10.250381),
    Sketcher.Constraint("DistanceY", -1, 1, 2, 3, 41.835905),
    Sketcher.Constraint("DistanceY", -1, 1, 23, 3, 36.137857),
])
pocket8 = body.newObject("PartDesign::Pocket", "Pocket007")
pocket8.Profile = sketch10
pocket8.Length = 10

doc.recompute()
